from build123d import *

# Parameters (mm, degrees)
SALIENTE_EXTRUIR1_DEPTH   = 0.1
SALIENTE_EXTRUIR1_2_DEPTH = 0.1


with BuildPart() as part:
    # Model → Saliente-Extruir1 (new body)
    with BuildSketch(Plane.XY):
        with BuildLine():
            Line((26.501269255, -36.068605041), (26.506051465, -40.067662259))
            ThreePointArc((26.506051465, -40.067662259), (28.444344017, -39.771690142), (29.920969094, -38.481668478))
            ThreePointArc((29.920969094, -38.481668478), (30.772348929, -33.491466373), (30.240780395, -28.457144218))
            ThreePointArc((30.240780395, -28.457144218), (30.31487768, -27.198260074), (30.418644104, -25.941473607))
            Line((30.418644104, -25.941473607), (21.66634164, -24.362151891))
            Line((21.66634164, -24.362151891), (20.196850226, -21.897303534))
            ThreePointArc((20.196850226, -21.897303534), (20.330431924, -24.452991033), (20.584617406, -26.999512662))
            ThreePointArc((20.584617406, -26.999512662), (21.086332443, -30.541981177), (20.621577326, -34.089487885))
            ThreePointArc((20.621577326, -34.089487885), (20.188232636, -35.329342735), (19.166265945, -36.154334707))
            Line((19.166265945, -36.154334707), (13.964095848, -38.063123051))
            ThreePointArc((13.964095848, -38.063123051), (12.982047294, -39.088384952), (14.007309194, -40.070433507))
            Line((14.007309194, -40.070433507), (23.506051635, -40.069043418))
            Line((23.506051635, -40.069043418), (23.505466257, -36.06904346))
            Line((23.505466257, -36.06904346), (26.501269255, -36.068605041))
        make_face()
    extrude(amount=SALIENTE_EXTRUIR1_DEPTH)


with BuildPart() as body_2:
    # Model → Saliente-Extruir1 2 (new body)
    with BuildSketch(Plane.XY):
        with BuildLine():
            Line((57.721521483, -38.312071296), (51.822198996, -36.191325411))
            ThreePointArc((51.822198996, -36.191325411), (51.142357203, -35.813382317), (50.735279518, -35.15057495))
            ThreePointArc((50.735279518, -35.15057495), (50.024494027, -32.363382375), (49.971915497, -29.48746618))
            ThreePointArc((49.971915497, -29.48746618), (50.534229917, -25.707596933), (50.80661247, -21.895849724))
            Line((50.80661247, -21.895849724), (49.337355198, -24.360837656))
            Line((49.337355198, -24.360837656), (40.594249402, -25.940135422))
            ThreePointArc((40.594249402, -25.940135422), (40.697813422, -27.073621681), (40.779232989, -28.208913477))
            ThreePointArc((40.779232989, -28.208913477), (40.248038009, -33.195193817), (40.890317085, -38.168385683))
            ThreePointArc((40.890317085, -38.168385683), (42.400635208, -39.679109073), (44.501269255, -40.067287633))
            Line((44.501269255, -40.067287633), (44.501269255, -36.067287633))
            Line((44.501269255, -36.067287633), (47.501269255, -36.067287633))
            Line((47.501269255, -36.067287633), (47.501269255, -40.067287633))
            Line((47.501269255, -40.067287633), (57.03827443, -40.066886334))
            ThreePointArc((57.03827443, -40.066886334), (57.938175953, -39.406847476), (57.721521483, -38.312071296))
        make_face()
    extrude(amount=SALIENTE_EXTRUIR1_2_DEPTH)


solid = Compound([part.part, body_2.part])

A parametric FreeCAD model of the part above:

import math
import FreeCAD as App
import Part
import Sketcher

V = App.Vector

doc = App.newDocument("Part")
params = doc.addObject("Spreadsheet::Sheet", "Params")
for row, (alias, value) in enumerate([
    ("sketch1_length", "4 mm"),
    ("pad1_length", "0.1 mm"),
    ("sketch2_width", "3 mm"),
    ("sketch2_height", "4 mm"),
    ("pad2_length", "0.1 mm"),
], start=1):
    params.set(f"A{row}", alias)
    params.set(f"B{row}", "=" + value)
    params.setAlias(f"B{row}", alias)

body = doc.addObject("PartDesign::Body", "Body")

# Sketch on XY plane
sketch1 = doc.addObject("Sketcher::SketchObject", "Sketch")
body.addObject(sketch1)
sketch1.AttachmentSupport = (doc.XY_Plane, [""])
sketch1.MapMode = "FlatFace"
sketch1.addGeometry(Part.LineSegment(V(26.501269, -36.068605, 0), V(26.506051, -40.067662, 0)), False)
sketch1.addGeometry(Part.ArcOfCircle(Part.Circle(V(26.966812, -36.59031, 0), V(0, 0, 1), 3.507745), math.radians(-97.547917), math.radians(-32.628845)), False)
sketch1.addGeometry(Part.ArcOfCircle(Part.Circle(V(12.260517, -32.900885, 0), V(0, 0, 1), 18.52125), math.radians(-17.536772), math.radians(13.88221)), False)
sketch1.addGeometry(Part.ArcOfCircle(Part.Circle(V(83.648738, -30.969087, 0), V(0, 0, 1), 53.466997), math.radians(174.604387), math.radians(177.307185)), False)
sketch1.addGeometry(Part.LineSegment(V(30.418644, -25.941474, 0), V(21.666342, -24.362152, 0)), False)
sketch1.addGeometry(Part.LineSegment(V(21.666342, -24.362152, 0), V(20.19685, -21.897304, 0)), False)
sketch1.addGeometry(Part.ArcOfCircle(Part.Circle(V(74.323521, -20.349524, 0), V(0, 0, 1), 54.148796), math.radians(-178.362044), math.radians(-172.945723)), False)
sketch1.addGeometry(Part.ArcOfCircle(Part.Circle(V(7.841792, -30.611025, 0), V(0, 0, 1), 13.244721), math.radians(-15.226184), math.radians(15.823543)), False)
sketch1.addGeometry(Part.ArcOfCircle(Part.Circle(V(18.230241, -33.949343, 0), V(0, 0, 1), 2.39544), math.radians(-66.998641), math.radians(-3.353994)), False)
sketch1.addGeometry(Part.LineSegment(V(19.166266, -36.154335, 0), V(13.964096, -38.063123, 0)), False)
sketch1.addGeometry(Part.ArcOfCircle(Part.Circle(V(13.985703, -39.066778, 0), V(0, 0, 1), 1.003888), math.radians(91.233272), math.radians(271.233272)), False)
sketch1.addGeometry(Part.LineSegment(V(14.007309, -40.070434, 0), V(23.506052, -40.069043, 0)), False)
sketch1.addGeometry(Part.LineSegment(V(23.506052, -40.069043, 0), V(23.505466, -36.069043, 0)), False)
sketch1.addGeometry(Part.LineSegment(V(23.505466, -36.069043, 0), V(26.501269, -36.068605, 0)), False)
sketch1.addConstraint(Sketcher.Constraint("Coincident", 0, 2, 1, 1))
sketch1.addConstraint(Sketcher.Constraint("Coincident", 1, 2, 2, 1))
sketch1.addConstraint(Sketcher.Constraint("Coincident", 2, 2, 3, 2))
sketch1.addConstraint(Sketcher.Constraint("Coincident", 3, 1, 4, 1))
sketch1.addConstraint(Sketcher.Constraint("Coincident", 4, 2, 5, 1))
sketch1.addConstraint(Sketcher.Constraint("Coincident", 5, 2, 6, 1))
sketch1.addConstraint(Sketcher.Constraint("Coincident", 6, 2, 7, 2))
sketch1.addConstraint(Sketcher.Constraint("Coincident", 7, 1, 8, 2))
sketch1.addConstraint(Sketcher.Constraint("Coincident", 8, 1, 9, 1))
sketch1.addConstraint(Sketcher.Constraint("Coincident", 9, 2, 10, 1))
sketch1.addConstraint(Sketcher.Constraint("Coincident", 10, 2, 11, 1))
sketch1.addConstraint(Sketcher.Constraint("Coincident", 11, 2, 12, 1))
sketch1.addConstraint(Sketcher.Constraint("Coincident", 12, 2, 13, 1))
sketch1.addConstraint(Sketcher.Constraint("Coincident", 13, 2, 0, 1))
sketch1.addConstraint(Sketcher.Constraint("Distance", 12, 4.0))
sketch1.addConstraint(Sketcher.Constraint("DistanceX", 11, 2, 0, 2, 3.0))
sketch1.addConstraint(Sketcher.Constraint("Radius", 2, 18.52125))
sketch1.addConstraint(Sketcher.Constraint("Radius", 7, 13.244721))
sketch1.addConstraint(Sketcher.Constraint("Radius", 8, 2.39544))
sketch1.addConstraint(Sketcher.Constraint("Radius", 1, 3.507745))
sketch1.addConstraint(Sketcher.Constraint("Radius", 3, 53.466997))
sketch1.addConstraint(Sketcher.Constraint("Radius", 6, 54.148796))
sketch1.addConstraint(Sketcher.Constraint("Radius", 10, 1.003888))
sketch1.addConstraint(Sketcher.Constraint("DistanceY", 2, 3, 3, 3, 1.931799))
sketch1.addConstraint(Sketcher.Constraint("DistanceY", 7, 3, 6, 3, 10.261501))
sketch1.addConstraint(Sketcher.Constraint("DistanceY", 8, 3, 2, 2, 5.492199))
sketch1.addConstraint(Sketcher.Constraint("DistanceX", 8, 3, 4, 2, 3.436101))
sketch1.addConstraint(Sketcher.Constraint("DistanceY", 10, 2, 8, 1, 3.916099))
sketch1.addConstraint(Sketcher.Constraint("DistanceX", 8, 1, 12, 2, 4.3392))
sketch1.addConstraint(Sketcher.Constraint("DistanceX", 13, 2, 1, 2, 3.4197))
sketch1.addConstraint(Sketcher.Constraint("Distance", 0, 3.99906))
sketch1.addConstraint(Sketcher.Constraint("Distance", 5, 2.869648))
sketch1.addConstraint(Sketcher.Constraint("DistanceY", 1, 3, -1, 1, 36.59031))
sketch1.addConstraint(Sketcher.Constraint("DistanceX", -1, 1, 3, 3, 83.648738))
sketch1.addConstraint(Sketcher.Constraint("DistanceX", -1, 1, 6, 3, 74.323521))
sketch1.addConstraint(Sketcher.Constraint("DistanceX", -1, 1, 7, 3, 7.841792))
sketch1.addConstraint(Sketcher.Constraint("DistanceX", -1, 1, 8, 3, 18.230241))
sketch1.addConstraint(Sketcher.Constraint("DistanceY", 10, 3, -1, 1, 39.066778))
sketch1.addConstraint(Sketcher.Constraint("DistanceX", -1, 1, 0, 2, 26.506051))
sketch1.addConstraint(Sketcher.Constraint("DistanceX", -1, 1, 1, 2, 29.920969))
sketch1.addConstraint(Sketcher.Constraint("DistanceY", 1, 2, -1, 1, 38.481668))
sketch1.addConstraint(Sketcher.Constraint("DistanceY", 4, 2, -1, 1, 24.362152))
sketch1.addConstraint(Sketcher.Constraint("DistanceX", -1, 1, 5, 2, 20.19685))
sketch1.addConstraint(Sketcher.Constraint("DistanceX", -1, 1, 10, 2, 14.007309))
sketch1.addConstraint(Sketcher.Constraint("DistanceX", 2, 3, 3, 3, 71.388221))
sketch1.addConstraint(Sketcher.Constraint("DistanceX", 10, 3, 8, 3, 4.244538))
sketch1.addConstraint(Sketcher.Constraint("DistanceY", 2, 2, 3, 1, 2.515671))
sketch1.addConstraint(Sketcher.Constraint("DistanceX", 2, 3, 9, 2, 1.703579))
sketch1.addConstraint(Sketcher.Constraint("DistanceY", 11, 2, 0, 2, 0.001381))
sketch1.setExpression("Constraints[14]", "Params.sketch1_length")
pad1 = doc.addObject("PartDesign::Pad", "Pad")
body.addObject(pad1)
pad1.Profile = sketch1
pad1.setExpression("Length", "Params.pad1_length")
body2 = doc.addObject("PartDesign::Body", "Body001")

# Sketch on XY plane
sketch2 = doc.addObject("Sketcher::SketchObject", "Sketch001")
body2.addObject(sketch2)
sketch2.AttachmentSupport = (doc.getObject("XY_Plane001"), [""])
sketch2.MapMode = "FlatFace"
sketch2.addGeometry(Part.LineSegment(V(57.7, -38.3, 0), V(51.8, -36.2, 0)), False)
sketch2.addGeometry(Part.ArcOfCircle(Part.Circle(V(52.2, -34.7, 0), V(0, 0, 1), 1.5), math.radians(-163), math.radians(-104)), False)
sketch2.addGeometry(Part.ArcOfCircle(Part.Circle(V(62.4, -30.7, 0), V(0, 0, 1), 12.5), math.radians(174), math.radians(201)), False)
sketch2.addGeometry(Part.ArcOfCircle(Part.Circle(V(0.8, -20.2, 0), V(0, 0, 1), 50.1), math.radians(-10.65), math.radians(-1.9)), False)
sketch2.addGeometry(Part.LineSegment(V(50.8, -21.9, 0), V(49.3, -24.4, 0)), False)
sketch2.addGeometry(Part.LineSegment(V(49.3, -24.4, 0), V(40.6, -25.9, 0)), False)
sketch2.addGeometry(Part.ArcOfCircle(Part.Circle(V(-17.4, -31.8, 0), V(0, 0, 1), 58.3), math.radians(3.54), math.radians(5.78)), False)
sketch2.addGeometry(Part.ArcOfCircle(Part.Circle(V(61.7, -33, 0), V(0, 0, 1), 21.4), math.radians(167), math.radians(194)), False)
sketch2.addGeometry(Part.ArcOfCircle(Part.Circle(V(44.1, -36.5, 0), V(0, 0, 1), 3.6), math.radians(-152), math.radians(-83)), False)
sketch2.addGeometry(Part.LineSegment(V(44.5, -40.1, 0), V(44.5, -36.1, 0)), False)
sketch2.addGeometry(Part.LineSegment(V(44.5, -36.1, 0), V(47.5, -36.1, 0)), False)
sketch2.addGeometry(Part.LineSegment(V(47.5, -36.1, 0), V(47.5, -40.1, 0)), False)
sketch2.addGeometry(Part.LineSegment(V(47.5, -40.1, 0), V(57, -40.1, 0)), False)
sketch2.addGeometry(Part.ArcOfCircle(Part.Circle(V(57, -39, 0), V(0, 0, 1), 1), math.radians(-86), math.radians(44)), False)
sketch2.addConstraint(Sketcher.Constraint("Coincident", 0, 2, 1, 2))
sketch2.addConstraint(Sketcher.Constraint("Coincident", 1, 1, 2, 2))
sketch2.addConstraint(Sketcher.Constraint("Coincident", 2, 1, 3, 1))
sketch2.addConstraint(Sketcher.Constraint("Coincident", 3, 2, 4, 1))
sketch2.addConstraint(Sketcher.Constraint("Coincident", 4, 2, 5, 1))
sketch2.addConstraint(Sketcher.Constraint("Coincident", 5, 2, 6, 2))
sketch2.addConstraint(Sketcher.Constraint("Coincident", 6, 1, 7, 1))
sketch2.addConstraint(Sketcher.Constraint("Coincident", 7, 2, 8, 1))
sketch2.addConstraint(Sketcher.Constraint("Coincident", 8, 2, 9, 1))
sketch2.addConstraint(Sketcher.Constraint("Coincident", 9, 2, 10, 1))
sketch2.addConstraint(Sketcher.Constraint("Coincident", 10, 2, 11, 1))
sketch2.addConstraint(Sketcher.Constraint("Coincident", 11, 2, 12, 1))
sketch2.addConstraint(Sketcher.Constraint("Coincident", 12, 2, 13, 1))
sketch2.addConstraint(Sketcher.Constraint("Coincident", 13, 2, 0, 1))
sketch2.addConstraint(Sketcher.Constraint("Vertical", 9))
sketch2.addConstraint(Sketcher.Constraint("Horizontal", 10))
sketch2.addConstraint(Sketcher.Constraint("Vertical", 11))
sketch2.addConstraint(Sketcher.Constraint("Horizontal", 8, 2, 11, 2))
sketch2.addConstraint(Sketcher.Constraint("DistanceX", 10, 1, 10, 2, 3.0))
sketch2.addConstraint(Sketcher.Constraint("DistanceY", 9, 1, 9, 2, 4.0))
sketch2.addConstraint(Sketcher.Constraint("Radius", 1, 1.534058))
sketch2.addConstraint(Sketcher.Constraint("Radius", 2, 12.45733))
sketch2.addConstraint(Sketcher.Constraint("Radius", 6, 58.309489))
sketch2.addConstraint(Sketcher.Constraint("Radius", 7, 21.426631))
sketch2.addConstraint(Sketcher.Constraint("Radius", 13, 1.03945))
sketch2.addConstraint(Sketcher.Constraint("Radius", 3, 50.067384))
sketch2.addConstraint(Sketcher.Constraint("Radius", 8, 3.598008))
sketch2.addConstraint(Sketcher.Constraint("DistanceX", -1, 1, 0, 2, 51.822199))
sketch2.addConstraint(Sketcher.Constraint("DistanceY", 0, 2, 7, 3, 3.235101))
sketch2.addConstraint(Sketcher.Constraint("DistanceX", 3, 2, 1, 3, 1.3967))
sketch2.addConstraint(Sketcher.Constraint("DistanceY", 7, 2, 8, 3, 1.6738))
sketch2.addConstraint(Sketcher.Constraint("DistanceY", 8, 2, 7, 2, 1.898902))
sketch2.addConstraint(Sketcher.Constraint("Distance", 4, 2.869648))
sketch2.addConstraint(Sketcher.Constraint("DistanceY", 1, 3, -1, 1, 34.705362))
sketch2.addConstraint(Sketcher.Constraint("DistanceX", -1, 1, 2, 3, 62.370169))
sketch2.addConstraint(Sketcher.Constraint("DistanceX", -1, 1, 3, 3, 0.766761))
sketch2.addConstraint(Sketcher.Constraint("DistanceY", 3, 3, -1, 1, 20.235672))
sketch2.addConstraint(Sketcher.Constraint("DistanceX", 6, 3, -1, 1, 17.41882))
sketch2.addConstraint(Sketcher.Constraint("DistanceY", 6, 3, -1, 1, 31.81213))
sketch2.addConstraint(Sketcher.Constraint("DistanceX", -1, 1, 8, 3, 44.07529))
sketch2.addConstraint(Sketcher.Constraint("DistanceY", 13, 3, -1, 1, 39.02971))
sketch2.addConstraint(Sketcher.Constraint("DistanceX", -1, 1, 1, 1, 50.73528))
sketch2.addConstraint(Sketcher.Constraint("DistanceY", 3, 2, -1, 1, 21.89585))
sketch2.addConstraint(Sketcher.Constraint("DistanceX", -1, 1, 5, 2, 40.594249))
sketch2.addConstraint(Sketcher.Constraint("DistanceX", -1, 1, 13, 2, 57.721521))
sketch2.addConstraint(Sketcher.Constraint("DistanceY", 13, 2, -1, 1, 38.312071))
sketch2.addConstraint(Sketcher.Constraint("DistanceY", 8, 3, 7, 3, 3.538361))
sketch2.addConstraint(Sketcher.Constraint("DistanceX", 4, 2, 2, 1, 0.63456))
sketch2.addConstraint(Sketcher.Constraint("DistanceX", 13, 3, 12, 2, 0.068718))
sketch2.setExpression("Constraints[18]", "Params.sketch2_width")
sketch2.setExpression("Constraints[19]", "Params.sketch2_height")
pad2 = doc.addObject("PartDesign::Pad", "Pad001")
body2.addObject(pad2)
pad2.Profile = sketch2
pad2.setExpression("Length", "Params.pad2_length")

doc.recompute()
